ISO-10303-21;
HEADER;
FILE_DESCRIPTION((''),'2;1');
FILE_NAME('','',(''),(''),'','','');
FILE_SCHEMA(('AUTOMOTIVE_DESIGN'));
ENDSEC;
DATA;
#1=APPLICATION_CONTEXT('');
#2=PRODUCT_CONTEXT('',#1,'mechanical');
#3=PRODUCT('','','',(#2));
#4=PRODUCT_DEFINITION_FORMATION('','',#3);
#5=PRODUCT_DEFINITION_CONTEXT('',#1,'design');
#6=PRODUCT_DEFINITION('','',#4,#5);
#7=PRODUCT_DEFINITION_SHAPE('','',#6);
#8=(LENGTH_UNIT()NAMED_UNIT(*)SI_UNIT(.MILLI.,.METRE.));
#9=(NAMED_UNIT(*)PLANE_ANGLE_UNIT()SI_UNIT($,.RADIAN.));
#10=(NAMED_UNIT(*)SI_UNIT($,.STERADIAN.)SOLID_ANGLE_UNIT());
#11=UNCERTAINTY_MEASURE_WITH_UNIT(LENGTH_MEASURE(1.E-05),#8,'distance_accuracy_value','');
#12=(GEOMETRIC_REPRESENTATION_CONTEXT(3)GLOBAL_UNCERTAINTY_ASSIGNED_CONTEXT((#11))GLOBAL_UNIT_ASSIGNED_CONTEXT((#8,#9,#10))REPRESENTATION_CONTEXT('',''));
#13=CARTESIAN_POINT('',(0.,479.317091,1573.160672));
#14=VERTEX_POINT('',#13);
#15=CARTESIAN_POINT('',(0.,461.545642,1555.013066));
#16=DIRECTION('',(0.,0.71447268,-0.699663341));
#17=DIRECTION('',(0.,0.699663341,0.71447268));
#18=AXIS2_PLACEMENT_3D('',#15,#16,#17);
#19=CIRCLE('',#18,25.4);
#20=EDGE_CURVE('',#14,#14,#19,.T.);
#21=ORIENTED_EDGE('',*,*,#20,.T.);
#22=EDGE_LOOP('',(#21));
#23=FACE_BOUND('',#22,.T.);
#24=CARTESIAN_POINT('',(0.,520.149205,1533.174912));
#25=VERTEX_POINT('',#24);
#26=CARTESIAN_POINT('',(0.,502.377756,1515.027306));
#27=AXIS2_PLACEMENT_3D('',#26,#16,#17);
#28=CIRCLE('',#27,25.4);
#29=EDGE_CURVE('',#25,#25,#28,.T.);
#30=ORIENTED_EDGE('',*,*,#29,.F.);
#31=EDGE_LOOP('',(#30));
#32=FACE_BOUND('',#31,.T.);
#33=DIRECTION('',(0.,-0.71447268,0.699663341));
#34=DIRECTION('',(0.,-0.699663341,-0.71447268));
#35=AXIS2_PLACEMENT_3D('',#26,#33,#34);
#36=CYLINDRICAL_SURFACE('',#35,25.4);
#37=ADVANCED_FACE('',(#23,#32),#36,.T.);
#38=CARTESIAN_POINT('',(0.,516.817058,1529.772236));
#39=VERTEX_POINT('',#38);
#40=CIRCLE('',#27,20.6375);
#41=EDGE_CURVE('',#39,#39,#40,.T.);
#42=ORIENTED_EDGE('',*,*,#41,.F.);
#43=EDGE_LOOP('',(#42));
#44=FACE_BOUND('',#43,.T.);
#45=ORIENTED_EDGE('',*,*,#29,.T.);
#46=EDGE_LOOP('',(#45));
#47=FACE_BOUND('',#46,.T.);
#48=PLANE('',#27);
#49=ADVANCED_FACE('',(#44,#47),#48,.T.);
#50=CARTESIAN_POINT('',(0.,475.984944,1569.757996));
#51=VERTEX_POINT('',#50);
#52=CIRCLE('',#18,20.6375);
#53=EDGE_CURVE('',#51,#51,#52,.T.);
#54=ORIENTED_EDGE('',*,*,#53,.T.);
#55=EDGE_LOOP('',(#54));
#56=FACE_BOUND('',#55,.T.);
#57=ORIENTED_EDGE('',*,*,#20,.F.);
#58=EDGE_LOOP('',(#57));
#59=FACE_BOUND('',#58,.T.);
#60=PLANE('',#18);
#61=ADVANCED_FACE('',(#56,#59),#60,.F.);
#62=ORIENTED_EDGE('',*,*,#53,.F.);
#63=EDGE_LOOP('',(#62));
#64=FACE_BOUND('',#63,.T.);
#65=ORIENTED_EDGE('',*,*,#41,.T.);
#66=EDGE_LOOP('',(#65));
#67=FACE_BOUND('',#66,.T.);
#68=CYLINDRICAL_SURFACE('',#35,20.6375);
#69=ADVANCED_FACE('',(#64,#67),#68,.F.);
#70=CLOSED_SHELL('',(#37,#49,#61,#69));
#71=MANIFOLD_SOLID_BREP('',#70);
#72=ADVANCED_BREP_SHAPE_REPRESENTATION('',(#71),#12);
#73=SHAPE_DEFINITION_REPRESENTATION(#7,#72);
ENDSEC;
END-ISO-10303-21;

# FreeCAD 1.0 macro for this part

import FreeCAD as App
import Part
import Sketcher

V = App.Vector
Q = App.Units.Quantity

doc = App.newDocument("Part")
body = doc.addObject("PartDesign::Body", "Body")

sketch1 = doc.addObject("Sketcher::SketchObject", "Sketch")
body.addObject(sketch1)
sketch1.Placement = App.Placement(V(0, -521.314194, 510.508576), App.Rotation(V(1, 0, 0), V(0, -0.699663341, -0.71447268), V(0, 0.71447268, -0.699663341), "ZXY"))
sketch1.addGeometry(Part.Circle(V(0, -1434, 0), V(0, 0, 1), 25), False)
sketch1.addGeometry(Part.Circle(V(0, -1434, 0), V(0, 0, 1), 21), False)
sketch1.addConstraint(Sketcher.Constraint("Coincident", 1, 3, 0, 3))
sketch1.addConstraint(Sketcher.Constraint("PointOnObject", 0, 3, -2))
sketch1.addConstraint(Sketcher.Constraint("Diameter", 0, Q("2 in")))
sketch1.addConstraint(Sketcher.Constraint("Diameter", 1, Q("1.625 in")))
sketch1.addConstraint(Sketcher.Constraint("DistanceY", 0, 3, -1, 1, Q("1433.94092 mm")))
pad1 = doc.addObject("PartDesign::Pad", "Pad")
body.addObject(pad1)
pad1.Profile = sketch1
pad1.Length = Q("2.25 in")
pad1.Midplane = True

doc.recompute()
